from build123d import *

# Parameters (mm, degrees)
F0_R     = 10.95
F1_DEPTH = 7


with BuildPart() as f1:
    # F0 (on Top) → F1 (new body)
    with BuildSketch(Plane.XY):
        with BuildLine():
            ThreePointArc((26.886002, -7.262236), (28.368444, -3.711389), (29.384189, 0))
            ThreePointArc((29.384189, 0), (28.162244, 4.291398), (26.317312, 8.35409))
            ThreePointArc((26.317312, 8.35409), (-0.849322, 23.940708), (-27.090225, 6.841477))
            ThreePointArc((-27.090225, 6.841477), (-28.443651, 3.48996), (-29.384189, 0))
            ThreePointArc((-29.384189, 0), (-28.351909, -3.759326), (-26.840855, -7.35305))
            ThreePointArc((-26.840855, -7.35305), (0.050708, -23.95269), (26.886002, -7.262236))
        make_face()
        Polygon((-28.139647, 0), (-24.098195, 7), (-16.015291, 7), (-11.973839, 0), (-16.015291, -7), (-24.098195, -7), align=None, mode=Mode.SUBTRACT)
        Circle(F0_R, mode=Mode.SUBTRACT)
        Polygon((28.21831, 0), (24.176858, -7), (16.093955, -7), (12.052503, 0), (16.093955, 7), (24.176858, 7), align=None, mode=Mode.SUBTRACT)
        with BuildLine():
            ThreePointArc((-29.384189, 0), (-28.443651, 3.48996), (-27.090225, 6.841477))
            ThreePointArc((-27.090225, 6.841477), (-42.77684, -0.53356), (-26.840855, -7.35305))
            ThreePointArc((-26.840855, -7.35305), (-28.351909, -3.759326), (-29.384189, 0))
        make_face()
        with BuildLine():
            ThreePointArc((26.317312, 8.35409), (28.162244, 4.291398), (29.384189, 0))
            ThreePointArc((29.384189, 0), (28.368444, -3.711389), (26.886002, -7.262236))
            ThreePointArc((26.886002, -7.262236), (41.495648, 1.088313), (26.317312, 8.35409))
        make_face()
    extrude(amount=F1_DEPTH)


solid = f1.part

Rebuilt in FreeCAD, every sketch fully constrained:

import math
import FreeCAD as App
import Part
import Sketcher

V = App.Vector
Q = App.Units.Quantity

doc = App.newDocument("Part")
params = doc.addObject("Spreadsheet::Sheet", "Params")
for row, (alias, value) in enumerate([
    ("sketch1_radius", "30 mm"),
    ("sketch1_diameter", "21.9 mm"),
    ("sketch1_radius2", "9.5 mm"),
    ("pad1_length", "7 mm"),
], start=1):
    params.set(f"A{row}", alias)
    params.set(f"B{row}", "=" + value)
    params.setAlias(f"B{row}", alias)

body = doc.addObject("PartDesign::Body", "Body")

# Sketch on XY plane
sketch1 = body.newObject("Sketcher::SketchObject", "Sketch")
sketch1.AttachmentSupport = (doc.getObject("XY_Plane"), [""])
sketch1.MapMode = "FlatFace"
sketch1.addGeometry([
    Part.ArcOfCircle(Part.Circle(V(0, -6.047267, 0), V(0, 0, 1), 30), math.radians(28.688357), math.radians(154.556248)),  # 0
    Part.ArcOfCircle(Part.Circle(V(-33.278306, -0.366689, 0), V(0, 0, 1), 9.5), math.radians(49.354506), math.radians(312.658435)),  # 1
    Part.ArcOfCircle(Part.Circle(V(0, 6.047267, 0), V(0, 0, 1), 30), math.radians(-153.469302), math.radians(-26.337005)),  # 2
    Part.ArcOfCircle(Part.Circle(V(32.001941, 0.742586, 0), V(0, 0, 1), 9.5), math.radians(-122.582937), math.radians(126.754103)),  # 3
    Part.LineSegment(V(-24.098195, -7, 0), V(-28.139647, 0, 0)),  # 4
    Part.LineSegment(V(-28.139647, 0, 0), V(-24.098195, 7, 0)),  # 5
    Part.LineSegment(V(-24.098195, 7, 0), V(-16.015291, 7, 0)),  # 6
    Part.LineSegment(V(-16.015291, 7, 0), V(-11.973839, 0, 0)),  # 7
    Part.LineSegment(V(-11.973839, 0, 0), V(-16.015291, -7, 0)),  # 8
    Part.LineSegment(V(-16.015291, -7, 0), V(-24.098195, -7, 0)),  # 9
    Part.Circle(V(0, 0, 0), V(0, 0, 1), 10.95),  # 10
    Part.LineSegment(V(24.176858, 7, 0), V(28.21831, 0, 0)),  # 11
    Part.LineSegment(V(28.21831, 0, 0), V(24.176858, -7, 0)),  # 12
    Part.LineSegment(V(24.176858, -7, 0), V(16.093955, -7, 0)),  # 13
    Part.LineSegment(V(16.093955, -7, 0), V(12.052503, 0, 0)),  # 14
    Part.LineSegment(V(12.052503, 0, 0), V(16.093955, 7, 0)),  # 15
    Part.LineSegment(V(16.093955, 7, 0), V(24.176858, 7, 0)),  # 16
], False)
sketch1.addConstraint([
    Sketcher.Constraint("Coincident", 0, 2, 1, 1),
    Sketcher.Constraint("Coincident", 1, 2, 2, 1),
    Sketcher.Constraint("Coincident", 2, 2, 3, 1),
    Sketcher.Constraint("Coincident", 3, 2, 0, 1),
    Sketcher.Constraint("Coincident", 4, 2, 5, 1),
    Sketcher.Constraint("Coincident", 5, 2, 6, 1),
    Sketcher.Constraint("Coincident", 6, 2, 7, 1),
    Sketcher.Constraint("Coincident", 7, 2, 8, 1),
    Sketcher.Constraint("Coincident", 8, 2, 9, 1),
    Sketcher.Constraint("Coincident", 9, 2, 4, 1),
    Sketcher.Constraint("Coincident", 11, 2, 12, 1),
    Sketcher.Constraint("Coincident", 12, 2, 13, 1),
    Sketcher.Constraint("Coincident", 13, 2, 14, 1),
    Sketcher.Constraint("Coincident", 14, 2, 15, 1),
    Sketcher.Constraint("Coincident", 15, 2, 16, 1),
    Sketcher.Constraint("Coincident", 16, 2, 11, 1),
    Sketcher.Constraint("Horizontal", 6),
    Sketcher.Constraint("Horizontal", 9),
    Sketcher.Constraint("Horizontal", 13),
    Sketcher.Constraint("Horizontal", 16),
    Sketcher.Constraint("Coincident", 10, 3, -1, 1),
    Sketcher.Constraint("Equal", 0, 2),
    Sketcher.Constraint("Equal", 1, 3),
    Sketcher.Constraint("Symmetric", 0, 3, 2, 3, -1, 1),
    Sketcher.Constraint("Symmetric", 6, 2, 8, 2, -1),
    Sketcher.Constraint("Symmetric", 13, 2, 15, 2, -1),
    Sketcher.Constraint("PointOnObject", 0, 3, -2),
    Sketcher.Constraint("PointOnObject", 4, 2, -1),
    Sketcher.Constraint("PointOnObject", 7, 2, -1),
    Sketcher.Constraint("PointOnObject", 11, 2, -1),
    Sketcher.Constraint("PointOnObject", 14, 2, -1),
    Sketcher.Constraint("Parallel", 4, 7),
    Sketcher.Constraint("Parallel", 5, 8),
    Sketcher.Constraint("Parallel", 7, 11),
    Sketcher.Constraint("Parallel", 8, 12),
    Sketcher.Constraint("Parallel", 11, 14),
    Sketcher.Constraint("Horizontal", 9, 2, 12, 2),
    Sketcher.Constraint("Equal", 9, 13),
    Sketcher.Constraint("Radius", 0, 30.0),
    Sketcher.Constraint("Diameter", 10, 21.9),
    Sketcher.Constraint("Radius", 1, 9.5),
    Sketcher.Constraint("Angle", 4, Q("120.000001 deg")),
    Sketcher.Constraint("DistanceY", -1, 1, 5, 2, 7.0),
    Sketcher.Constraint("DistanceX", -1, 1, 2, 2, 26.886002),
    Sketcher.Constraint("DistanceX", 3, 2, 11, 2, 1.900998),
    Sketcher.Constraint("DistanceX", 6, 1, 6, 2, 8.082904),
    Sketcher.Constraint("DistanceY", 1, 3, -1, 1, 0.366689),
    Sketcher.Constraint("DistanceX", -1, 1, 3, 3, 32.001941),
    Sketcher.Constraint("DistanceY", 1, 2, -1, 1, 7.35305),
    Sketcher.Constraint("DistanceX", -1, 1, 3, 2, 26.317312),
    Sketcher.Constraint("DistanceX", 6, 2, -1, 1, 16.015291),
])
sketch1.setExpression("Constraints[38]", "Params.sketch1_radius")
sketch1.setExpression("Constraints[39]", "Params.sketch1_diameter")
sketch1.setExpression("Constraints[40]", "Params.sketch1_radius2")
pad1 = body.newObject("PartDesign::Pad", "Pad")
pad1.Profile = sketch1
pad1.setExpression("Length", "Params.pad1_length")

doc.recompute()
